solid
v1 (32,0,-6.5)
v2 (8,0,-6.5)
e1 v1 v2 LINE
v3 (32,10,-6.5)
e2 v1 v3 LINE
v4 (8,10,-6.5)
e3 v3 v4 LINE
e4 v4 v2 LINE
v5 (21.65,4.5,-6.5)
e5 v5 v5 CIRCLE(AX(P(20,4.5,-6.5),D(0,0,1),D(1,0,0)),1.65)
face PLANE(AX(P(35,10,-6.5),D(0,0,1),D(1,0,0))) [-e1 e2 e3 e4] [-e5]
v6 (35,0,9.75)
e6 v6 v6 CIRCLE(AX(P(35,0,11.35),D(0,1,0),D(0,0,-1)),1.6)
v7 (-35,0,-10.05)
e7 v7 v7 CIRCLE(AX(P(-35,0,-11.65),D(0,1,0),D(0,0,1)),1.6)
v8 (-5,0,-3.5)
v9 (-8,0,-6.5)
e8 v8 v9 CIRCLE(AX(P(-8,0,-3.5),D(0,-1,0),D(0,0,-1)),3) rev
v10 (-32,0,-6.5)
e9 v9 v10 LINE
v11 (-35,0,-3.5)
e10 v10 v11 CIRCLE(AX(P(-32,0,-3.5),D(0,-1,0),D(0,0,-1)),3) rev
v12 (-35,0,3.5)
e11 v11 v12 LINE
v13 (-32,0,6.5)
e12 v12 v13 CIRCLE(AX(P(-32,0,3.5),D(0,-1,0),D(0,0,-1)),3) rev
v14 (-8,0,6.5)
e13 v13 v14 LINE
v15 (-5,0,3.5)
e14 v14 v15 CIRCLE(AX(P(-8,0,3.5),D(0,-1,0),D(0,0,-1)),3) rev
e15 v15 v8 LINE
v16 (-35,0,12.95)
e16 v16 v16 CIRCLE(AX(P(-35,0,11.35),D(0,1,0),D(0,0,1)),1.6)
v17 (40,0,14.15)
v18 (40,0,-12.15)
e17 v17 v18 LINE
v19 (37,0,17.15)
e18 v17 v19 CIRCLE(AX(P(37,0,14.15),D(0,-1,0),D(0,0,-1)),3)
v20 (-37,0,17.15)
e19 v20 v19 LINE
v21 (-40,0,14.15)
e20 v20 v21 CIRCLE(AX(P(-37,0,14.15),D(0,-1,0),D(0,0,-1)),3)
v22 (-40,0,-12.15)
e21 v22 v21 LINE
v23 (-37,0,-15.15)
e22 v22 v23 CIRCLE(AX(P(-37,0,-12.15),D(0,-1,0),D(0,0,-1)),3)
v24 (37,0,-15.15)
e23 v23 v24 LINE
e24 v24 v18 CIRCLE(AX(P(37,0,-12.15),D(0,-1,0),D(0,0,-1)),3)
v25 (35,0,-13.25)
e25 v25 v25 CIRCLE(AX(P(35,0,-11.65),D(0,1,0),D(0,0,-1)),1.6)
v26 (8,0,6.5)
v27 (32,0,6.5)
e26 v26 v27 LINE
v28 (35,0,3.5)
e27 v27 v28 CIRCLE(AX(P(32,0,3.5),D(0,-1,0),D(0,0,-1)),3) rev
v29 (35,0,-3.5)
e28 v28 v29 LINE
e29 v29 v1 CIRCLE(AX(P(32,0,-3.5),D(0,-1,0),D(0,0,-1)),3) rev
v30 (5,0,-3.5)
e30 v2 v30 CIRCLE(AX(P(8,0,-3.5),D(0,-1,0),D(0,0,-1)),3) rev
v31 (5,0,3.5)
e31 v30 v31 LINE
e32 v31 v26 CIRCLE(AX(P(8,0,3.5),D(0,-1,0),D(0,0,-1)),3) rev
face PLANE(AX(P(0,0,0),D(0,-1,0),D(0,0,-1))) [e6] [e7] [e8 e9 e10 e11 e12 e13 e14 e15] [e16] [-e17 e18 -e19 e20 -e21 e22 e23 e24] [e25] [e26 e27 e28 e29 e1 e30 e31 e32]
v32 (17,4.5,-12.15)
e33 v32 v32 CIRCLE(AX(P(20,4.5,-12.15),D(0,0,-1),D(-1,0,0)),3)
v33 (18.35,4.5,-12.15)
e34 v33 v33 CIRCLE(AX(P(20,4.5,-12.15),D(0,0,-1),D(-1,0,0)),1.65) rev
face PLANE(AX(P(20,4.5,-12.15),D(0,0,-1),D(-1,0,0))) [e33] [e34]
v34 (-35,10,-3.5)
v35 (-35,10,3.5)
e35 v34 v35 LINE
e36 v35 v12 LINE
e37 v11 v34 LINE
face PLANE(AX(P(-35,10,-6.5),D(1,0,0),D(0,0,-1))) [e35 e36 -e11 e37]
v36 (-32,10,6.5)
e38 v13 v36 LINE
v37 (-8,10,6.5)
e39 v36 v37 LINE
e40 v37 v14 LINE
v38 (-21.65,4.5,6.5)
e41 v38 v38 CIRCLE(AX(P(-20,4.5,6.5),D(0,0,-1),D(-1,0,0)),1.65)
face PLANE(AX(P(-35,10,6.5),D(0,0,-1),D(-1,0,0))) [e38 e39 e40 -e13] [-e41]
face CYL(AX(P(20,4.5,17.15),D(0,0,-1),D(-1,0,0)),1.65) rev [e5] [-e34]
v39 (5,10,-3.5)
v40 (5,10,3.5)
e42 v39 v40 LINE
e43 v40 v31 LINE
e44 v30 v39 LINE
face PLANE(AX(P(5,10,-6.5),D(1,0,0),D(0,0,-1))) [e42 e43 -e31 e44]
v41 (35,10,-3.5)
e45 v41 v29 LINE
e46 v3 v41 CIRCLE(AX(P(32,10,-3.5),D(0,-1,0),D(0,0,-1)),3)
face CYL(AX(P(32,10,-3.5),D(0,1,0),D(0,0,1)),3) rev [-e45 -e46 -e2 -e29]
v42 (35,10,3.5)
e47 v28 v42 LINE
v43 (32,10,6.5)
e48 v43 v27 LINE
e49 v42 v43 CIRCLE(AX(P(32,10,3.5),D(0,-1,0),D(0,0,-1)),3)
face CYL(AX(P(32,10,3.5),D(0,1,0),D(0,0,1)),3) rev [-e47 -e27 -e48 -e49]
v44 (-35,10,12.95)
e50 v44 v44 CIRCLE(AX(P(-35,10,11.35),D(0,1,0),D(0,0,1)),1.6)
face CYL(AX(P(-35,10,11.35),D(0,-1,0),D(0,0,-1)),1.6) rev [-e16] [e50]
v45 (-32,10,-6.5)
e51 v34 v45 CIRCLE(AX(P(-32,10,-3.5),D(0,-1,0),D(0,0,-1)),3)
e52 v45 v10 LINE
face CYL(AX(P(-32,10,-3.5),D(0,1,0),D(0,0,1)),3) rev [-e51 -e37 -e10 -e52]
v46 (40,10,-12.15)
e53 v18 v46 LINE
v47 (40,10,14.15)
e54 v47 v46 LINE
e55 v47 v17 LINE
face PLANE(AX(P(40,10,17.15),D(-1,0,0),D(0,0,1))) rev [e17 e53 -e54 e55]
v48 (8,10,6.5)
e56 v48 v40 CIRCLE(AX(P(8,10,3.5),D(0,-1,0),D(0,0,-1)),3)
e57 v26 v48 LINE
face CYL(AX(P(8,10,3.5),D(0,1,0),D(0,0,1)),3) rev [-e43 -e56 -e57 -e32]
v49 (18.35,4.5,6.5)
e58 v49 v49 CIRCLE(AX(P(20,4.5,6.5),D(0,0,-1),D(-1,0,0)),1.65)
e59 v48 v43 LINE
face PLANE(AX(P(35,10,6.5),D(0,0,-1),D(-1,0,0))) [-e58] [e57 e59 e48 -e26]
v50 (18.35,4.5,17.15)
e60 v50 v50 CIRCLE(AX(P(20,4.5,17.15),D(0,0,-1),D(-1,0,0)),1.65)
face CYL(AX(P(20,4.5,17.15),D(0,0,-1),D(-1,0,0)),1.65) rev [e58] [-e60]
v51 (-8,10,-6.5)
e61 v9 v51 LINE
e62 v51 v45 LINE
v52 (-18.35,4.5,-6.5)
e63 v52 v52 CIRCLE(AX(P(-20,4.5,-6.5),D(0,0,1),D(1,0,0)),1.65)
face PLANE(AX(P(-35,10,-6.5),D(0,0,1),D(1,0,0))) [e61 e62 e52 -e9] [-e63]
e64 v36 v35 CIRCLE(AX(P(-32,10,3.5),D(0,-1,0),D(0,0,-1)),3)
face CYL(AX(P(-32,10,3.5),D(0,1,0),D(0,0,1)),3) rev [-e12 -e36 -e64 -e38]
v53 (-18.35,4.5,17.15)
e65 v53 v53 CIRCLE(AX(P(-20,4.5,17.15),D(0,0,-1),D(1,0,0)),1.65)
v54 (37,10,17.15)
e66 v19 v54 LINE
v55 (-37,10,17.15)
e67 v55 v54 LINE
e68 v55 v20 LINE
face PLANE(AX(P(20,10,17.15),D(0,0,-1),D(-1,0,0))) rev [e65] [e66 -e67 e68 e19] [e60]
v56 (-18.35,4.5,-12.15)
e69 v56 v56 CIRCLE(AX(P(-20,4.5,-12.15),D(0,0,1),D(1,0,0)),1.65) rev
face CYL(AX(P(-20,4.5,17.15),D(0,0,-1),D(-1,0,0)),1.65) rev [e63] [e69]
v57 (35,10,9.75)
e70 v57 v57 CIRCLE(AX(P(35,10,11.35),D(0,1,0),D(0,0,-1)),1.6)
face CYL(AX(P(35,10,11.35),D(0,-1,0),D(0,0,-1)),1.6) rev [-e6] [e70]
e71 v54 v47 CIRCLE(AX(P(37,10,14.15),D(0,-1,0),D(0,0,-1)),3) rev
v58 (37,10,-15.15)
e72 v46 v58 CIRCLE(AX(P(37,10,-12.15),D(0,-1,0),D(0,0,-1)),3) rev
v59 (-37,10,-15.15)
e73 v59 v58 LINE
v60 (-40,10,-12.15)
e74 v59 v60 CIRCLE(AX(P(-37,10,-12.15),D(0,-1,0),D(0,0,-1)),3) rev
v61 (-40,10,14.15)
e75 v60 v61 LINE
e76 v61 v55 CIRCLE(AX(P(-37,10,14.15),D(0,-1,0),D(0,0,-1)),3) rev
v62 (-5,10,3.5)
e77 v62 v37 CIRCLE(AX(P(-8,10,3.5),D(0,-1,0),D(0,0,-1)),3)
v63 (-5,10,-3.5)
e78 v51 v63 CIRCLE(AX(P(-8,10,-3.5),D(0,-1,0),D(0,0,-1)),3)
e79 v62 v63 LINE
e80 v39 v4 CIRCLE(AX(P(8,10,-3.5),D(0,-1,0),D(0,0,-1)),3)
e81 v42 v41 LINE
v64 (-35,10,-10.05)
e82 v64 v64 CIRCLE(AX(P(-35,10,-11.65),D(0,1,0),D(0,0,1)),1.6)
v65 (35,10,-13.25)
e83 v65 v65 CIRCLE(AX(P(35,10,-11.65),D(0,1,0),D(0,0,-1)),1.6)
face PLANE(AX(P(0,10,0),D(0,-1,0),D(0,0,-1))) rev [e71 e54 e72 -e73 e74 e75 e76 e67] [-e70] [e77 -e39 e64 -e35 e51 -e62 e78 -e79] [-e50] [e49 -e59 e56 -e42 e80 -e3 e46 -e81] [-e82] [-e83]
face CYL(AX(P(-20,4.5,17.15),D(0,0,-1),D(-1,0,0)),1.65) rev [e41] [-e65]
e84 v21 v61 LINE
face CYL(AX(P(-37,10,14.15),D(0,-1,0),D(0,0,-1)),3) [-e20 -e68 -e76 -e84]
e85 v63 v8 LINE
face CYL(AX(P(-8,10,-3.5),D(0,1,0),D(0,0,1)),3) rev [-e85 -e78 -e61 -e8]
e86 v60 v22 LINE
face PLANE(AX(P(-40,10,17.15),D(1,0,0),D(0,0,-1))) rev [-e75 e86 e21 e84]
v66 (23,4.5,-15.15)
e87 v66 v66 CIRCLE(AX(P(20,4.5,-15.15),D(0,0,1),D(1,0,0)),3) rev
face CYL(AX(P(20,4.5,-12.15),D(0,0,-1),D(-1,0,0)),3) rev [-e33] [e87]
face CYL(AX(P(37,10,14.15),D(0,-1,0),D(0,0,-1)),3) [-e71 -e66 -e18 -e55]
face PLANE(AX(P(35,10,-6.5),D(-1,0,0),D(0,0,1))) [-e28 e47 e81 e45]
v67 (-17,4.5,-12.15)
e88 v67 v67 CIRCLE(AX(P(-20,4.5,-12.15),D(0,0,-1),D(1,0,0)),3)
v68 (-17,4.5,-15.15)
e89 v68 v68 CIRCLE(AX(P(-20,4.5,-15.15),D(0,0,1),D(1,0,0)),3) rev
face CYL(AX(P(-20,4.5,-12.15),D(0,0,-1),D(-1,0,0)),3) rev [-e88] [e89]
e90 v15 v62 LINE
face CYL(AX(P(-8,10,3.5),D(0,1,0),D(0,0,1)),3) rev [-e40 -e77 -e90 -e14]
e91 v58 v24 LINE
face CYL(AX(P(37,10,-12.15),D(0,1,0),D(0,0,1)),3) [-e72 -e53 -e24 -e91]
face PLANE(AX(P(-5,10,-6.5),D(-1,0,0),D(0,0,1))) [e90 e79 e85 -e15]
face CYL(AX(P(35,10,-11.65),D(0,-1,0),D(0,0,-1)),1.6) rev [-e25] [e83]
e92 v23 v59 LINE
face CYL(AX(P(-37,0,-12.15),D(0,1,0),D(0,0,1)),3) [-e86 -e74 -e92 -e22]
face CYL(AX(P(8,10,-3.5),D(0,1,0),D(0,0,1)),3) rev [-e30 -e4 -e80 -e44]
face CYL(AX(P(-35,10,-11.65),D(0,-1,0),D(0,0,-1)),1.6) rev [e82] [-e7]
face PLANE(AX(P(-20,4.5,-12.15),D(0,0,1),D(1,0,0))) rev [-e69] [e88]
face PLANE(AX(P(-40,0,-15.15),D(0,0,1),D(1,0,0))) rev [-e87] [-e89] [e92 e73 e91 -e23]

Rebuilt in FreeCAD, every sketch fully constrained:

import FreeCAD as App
import Part
import Sketcher

V = App.Vector
Q = App.Units.Quantity


def edges_at(feature, points):
    """Names of the edges that pass closest to the given points."""
    edges = feature.Shape.Edges
    near = lambda p: min(range(len(edges)), key=lambda i: edges[i].distToShape(Part.Vertex(*p))[0])
    return sorted({f"Edge{near(p) + 1}" for p in points})

doc = App.newDocument("Part")
body = doc.addObject("PartDesign::Body", "Body")

sketch1 = body.newObject("Sketcher::SketchObject", "Sketch")
sketch1.AttachmentSupport = (doc.getObject("XZ_Plane"), [""])
sketch1.MapMode = "FlatFace"
sketch1.addGeometry([
    Part.LineSegment(V(-40, -17.1, 0), V(-40, 17.1, 0)),
    Part.LineSegment(V(-40, 17.1, 0), V(40, 17.1, 0)),
    Part.LineSegment(V(40, 17.1, 0), V(40, -17.1, 0)),
    Part.LineSegment(V(40, -17.1, 0), V(-40, -17.1, 0)),
    Part.Circle(V(35, 11.3, 0), V(0, 0, 1), 1.6),
    Part.LineSegment(V(5, 6.5, 0), V(5, -6.5, 0)),
    Part.LineSegment(V(5, -6.5, 0), V(35, -6.5, 0)),
    Part.LineSegment(V(35, -6.5, 0), V(35, 6.5, 0)),
    Part.LineSegment(V(35, 6.5, 0), V(5, 6.5, 0)),
    Part.Circle(V(-35, 11.3, 0), V(0, 0, 1), 1.6),
    Part.LineSegment(V(-35, 6.5, 0), V(-35, -6.5, 0)),
    Part.LineSegment(V(-35, -6.5, 0), V(-5, -6.5, 0)),
    Part.LineSegment(V(-5, -6.5, 0), V(-5, 6.5, 0)),
    Part.LineSegment(V(-5, 6.5, 0), V(-35, 6.5, 0)),
    Part.Circle(V(35, -11.7, 0), V(0, 0, 1), 1.6),
    Part.Circle(V(-35, -11.7, 0), V(0, 0, 1), 1.6),
], False)
sketch1.addConstraint([
    Sketcher.Constraint("Coincident", 0, 2, 1, 1),
    Sketcher.Constraint("Coincident", 1, 2, 2, 1),
    Sketcher.Constraint("Coincident", 2, 2, 3, 1),
    Sketcher.Constraint("Coincident", 3, 2, 0, 1),
    Sketcher.Constraint("Coincident", 5, 2, 6, 1),
    Sketcher.Constraint("Coincident", 6, 2, 7, 1),
    Sketcher.Constraint("Coincident", 7, 2, 8, 1),
    Sketcher.Constraint("Coincident", 8, 2, 5, 1),
    Sketcher.Constraint("Coincident", 10, 2, 11, 1),
    Sketcher.Constraint("Coincident", 11, 2, 12, 1),
    Sketcher.Constraint("Coincident", 12, 2, 13, 1),
    Sketcher.Constraint("Coincident", 13, 2, 10, 1),
    Sketcher.Constraint("Vertical", 0),
    Sketcher.Constraint("Horizontal", 1),
    Sketcher.Constraint("Vertical", 2),
    Sketcher.Constraint("Horizontal", 3),
    Sketcher.Constraint("Vertical", 5),
    Sketcher.Constraint("Horizontal", 6),
    Sketcher.Constraint("Vertical", 7),
    Sketcher.Constraint("Horizontal", 8),
    Sketcher.Constraint("Vertical", 10),
    Sketcher.Constraint("Horizontal", 11),
    Sketcher.Constraint("Vertical", 12),
    Sketcher.Constraint("Horizontal", 13),
    Sketcher.Constraint("Equal", 4, 9),
    Sketcher.Constraint("Equal", 9, 14),
    Sketcher.Constraint("Equal", 14, 15),
    Sketcher.Constraint("Symmetric", 0, 2, 2, 2, -1, 1),
    Sketcher.Constraint("Symmetric", 7, 2, 10, 2, -1, 1),
    Sketcher.Constraint("Symmetric", 5, 2, 12, 2, -1, 1),
    Sketcher.Constraint("Symmetric", 4, 3, 9, 3, -2),
    Sketcher.Constraint("Symmetric", 14, 3, 15, 3, -2),
    Sketcher.Constraint("Horizontal", 6, 2, 10, 2),
    Sketcher.Constraint("Vertical", 4, 3, 14, 3),
    Sketcher.Constraint("Vertical", 14, 3, 6, 2),
    Sketcher.Constraint("Diameter", 4, Q("3.2 mm")),
    Sketcher.Constraint("DistanceX", 1, 1, 1, 2, Q("80 mm")),
    Sketcher.Constraint("DistanceX", 6, 1, 6, 2, Q("30 mm")),
    Sketcher.Constraint("DistanceY", 5, 2, 5, 1, Q("13 mm")),
    Sketcher.Constraint("DistanceY", 0, 1, 0, 2, Q("34.3 mm")),
    Sketcher.Constraint("DistanceX", -1, 1, 4, 3, Q("35 mm")),
    Sketcher.Constraint("DistanceY", 14, 3, 4, 3, Q("23 mm")),
    Sketcher.Constraint("DistanceY", 9, 3, 0, 2, Q("5.8 mm")),
])
pad1 = body.newObject("PartDesign::Pad", "Pad")
pad1.Profile = sketch1
pad1.Length = 10
pad1.Reversed = True

sketch2 = body.newObject("Sketcher::SketchObject", "Sketch001")
sketch2.AttachmentSupport = (doc.getObject("XY_Plane"), [""])
sketch2.MapMode = "FlatFace"
sketch2.AttachmentOffset = App.Placement(V(0, 0, -17.15), App.Rotation())
sketch2.addGeometry([
    Part.Circle(V(20, 4.5, 0), V(0, 0, 1), 1.6),
    Part.Circle(V(-20, 4.5, 0), V(0, 0, 1), 1.6),
], False)
sketch2.addConstraint([
    Sketcher.Constraint("Equal", 0, 1),
    Sketcher.Constraint("Symmetric", 0, 3, 1, 3, -2),
    Sketcher.Constraint("Diameter", 0, Q("3.3 mm")),
    Sketcher.Constraint("DistanceX", -1, 1, 0, 3, Q("20 mm")),
    Sketcher.Constraint("DistanceY", -1, 1, 0, 3, Q("4.5 mm")),
])
pocket1 = body.newObject("PartDesign::Pocket", "Pocket")
pocket1.Profile = sketch2
pocket1.Type = "ThroughAll"
pocket1.Reversed = True

sketch3 = body.newObject("Sketcher::SketchObject", "Sketch002")
sketch3.AttachmentSupport = (doc.getObject("XY_Plane"), [""])
sketch3.MapMode = "FlatFace"
sketch3.AttachmentOffset = App.Placement(V(0, 0, -17.15), App.Rotation())
sketch3.addGeometry([
    Part.Circle(V(20, 4.5, 0), V(0, 0, 1), 3),
    Part.Circle(V(-20, 4.5, 0), V(0, 0, 1), 3),
], False)
sketch3.addConstraint([
    Sketcher.Constraint("Equal", 0, 1),
    Sketcher.Constraint("Symmetric", 0, 3, 1, 3, -2),
    Sketcher.Constraint("Diameter", 0, Q("6 mm")),
    Sketcher.Constraint("DistanceX", -1, 1, 0, 3, Q("20 mm")),
    Sketcher.Constraint("DistanceY", -1, 1, 0, 3, Q("4.5 mm")),
])
pocket2 = body.newObject("PartDesign::Pocket", "Pocket001")
pocket2.Profile = sketch3
pocket2.Length = 5
pocket2.Reversed = True

sketch4 = body.newObject("Sketcher::SketchObject", "Sketch003")
sketch4.AttachmentSupport = (doc.getObject("XZ_Plane"), [""])
sketch4.MapMode = "FlatFace"
sketch4.AttachmentOffset = App.Placement(V(0, 0, -10), App.Rotation())
sketch4.addGeometry([
    Part.LineSegment(V(-40, -17.1, 0), V(-40, -15.2, 0)),
    Part.LineSegment(V(-40, -15.2, 0), V(40, -15.2, 0)),
    Part.LineSegment(V(40, -15.2, 0), V(40, -17.1, 0)),
    Part.LineSegment(V(40, -17.1, 0), V(-40, -17.1, 0)),
], False)
sketch4.addConstraint([
    Sketcher.Constraint("Coincident", 0, 2, 1, 1),
    Sketcher.Constraint("Coincident", 1, 2, 2, 1),
    Sketcher.Constraint("Coincident", 2, 2, 3, 1),
    Sketcher.Constraint("Coincident", 3, 2, 0, 1),
    Sketcher.Constraint("Vertical", 0),
    Sketcher.Constraint("Horizontal", 1),
    Sketcher.Constraint("Vertical", 2),
    Sketcher.Constraint("Horizontal", 3),
    Sketcher.Constraint("DistanceX", 1, 1, 1, 2, Q("80 mm")),
    Sketcher.Constraint("DistanceY", 0, 1, 0, 2, Q("2 mm")),
    Sketcher.Constraint("DistanceX", 0, 2, -1, 1, Q("40 mm")),
    Sketcher.Constraint("DistanceY", 0, 2, -1, 1, Q("15.15 mm")),
])
pocket3 = body.newObject("PartDesign::Pocket", "Pocket002")
pocket3.Profile = sketch4
pocket3.Type = "ThroughAll"
pocket3.Reversed = True
doc.recompute()

fillet = body.newObject("PartDesign::Fillet", "Fillet")
fillet.Base = (pocket3, edges_at(pocket3, [
    (40, 5, -15.15),
    (-40, 5, -15.15),
    (40, 5, 17.15),
    (-40, 5, 17.15),
    (-35, 5, -6.5),
    (-35, 5, 6.5),
    (-5, 5, 6.5),
    (-5, 5, -6.5),
    (35, 5, -6.5),
    (5, 5, -6.5),
    (5, 5, 6.5),
    (35, 5, 6.5),
]))
fillet.Radius = 3

doc.recompute()
